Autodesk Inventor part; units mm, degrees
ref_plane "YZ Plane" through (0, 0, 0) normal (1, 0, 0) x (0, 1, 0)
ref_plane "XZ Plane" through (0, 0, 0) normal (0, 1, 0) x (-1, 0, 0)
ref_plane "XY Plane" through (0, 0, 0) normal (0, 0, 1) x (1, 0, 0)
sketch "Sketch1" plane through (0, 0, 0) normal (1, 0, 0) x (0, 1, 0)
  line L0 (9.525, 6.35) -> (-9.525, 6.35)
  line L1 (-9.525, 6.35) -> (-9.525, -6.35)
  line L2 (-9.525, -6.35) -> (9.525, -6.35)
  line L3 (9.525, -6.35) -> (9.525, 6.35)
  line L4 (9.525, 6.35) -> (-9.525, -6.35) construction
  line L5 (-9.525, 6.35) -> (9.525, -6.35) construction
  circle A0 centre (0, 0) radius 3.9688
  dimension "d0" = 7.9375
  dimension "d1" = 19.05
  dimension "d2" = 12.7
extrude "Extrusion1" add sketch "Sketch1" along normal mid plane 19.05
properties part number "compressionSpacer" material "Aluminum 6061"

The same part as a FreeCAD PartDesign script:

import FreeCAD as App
import Part
import Sketcher
Q = App.Units.Quantity


def add_polygon(sketch, points):
    """Adds a closed chain of lines whose ends are joined by coincident constraints."""
    first, n = sketch.GeometryCount, len(points)
    for a, b in zip(points, points[1:] + points[:1]):
        sketch.addGeometry(Part.LineSegment(App.Vector(*a, 0), App.Vector(*b, 0)), False)
    for i in range(n):
        sketch.addConstraint(Sketcher.Constraint("Coincident", first + i, 2, first + (i + 1) % n, 1))

doc = App.newDocument("Part")
body = doc.addObject("PartDesign::Body", "Body")

sketch1 = doc.addObject("Sketcher::SketchObject", "Sketch")
body.addObject(sketch1)
sketch1.AttachmentSupport = (doc.YZ_Plane, [""])
sketch1.MapMode = "FlatFace"
add_polygon(sketch1, [(9.525, -6.35), (9.525, 6.35), (-9.525, 6.35), (-9.525, -6.35)])
sketch1.addGeometry(Part.Circle(App.Vector(0, 0, 0), App.Vector(0, 0, 1), 3.9688), False)
sketch1.addConstraint([
    Sketcher.Constraint("Vertical", 0),
    Sketcher.Constraint("Horizontal", 1),
    Sketcher.Constraint("Vertical", 2),
    Sketcher.Constraint("Horizontal", 3),
    Sketcher.Constraint("Coincident", 4, 3, -1, 1),
    Sketcher.Constraint("Symmetric", 0, 2, 2, 2, -1, 1),
    Sketcher.Constraint("Diameter", 4, Q("0.3125 in")),
    Sketcher.Constraint("DistanceY", 0, 1, 0, 2, Q("0.5 in")),
    Sketcher.Constraint("DistanceX", 1, 2, 1, 1, Q("0.75 in")),
])
pad1 = doc.addObject("PartDesign::Pad", "Pad")
body.addObject(pad1)
pad1.Profile = sketch1
pad1.Length = Q("0.75 in")
pad1.Midplane = True

doc.recompute()
